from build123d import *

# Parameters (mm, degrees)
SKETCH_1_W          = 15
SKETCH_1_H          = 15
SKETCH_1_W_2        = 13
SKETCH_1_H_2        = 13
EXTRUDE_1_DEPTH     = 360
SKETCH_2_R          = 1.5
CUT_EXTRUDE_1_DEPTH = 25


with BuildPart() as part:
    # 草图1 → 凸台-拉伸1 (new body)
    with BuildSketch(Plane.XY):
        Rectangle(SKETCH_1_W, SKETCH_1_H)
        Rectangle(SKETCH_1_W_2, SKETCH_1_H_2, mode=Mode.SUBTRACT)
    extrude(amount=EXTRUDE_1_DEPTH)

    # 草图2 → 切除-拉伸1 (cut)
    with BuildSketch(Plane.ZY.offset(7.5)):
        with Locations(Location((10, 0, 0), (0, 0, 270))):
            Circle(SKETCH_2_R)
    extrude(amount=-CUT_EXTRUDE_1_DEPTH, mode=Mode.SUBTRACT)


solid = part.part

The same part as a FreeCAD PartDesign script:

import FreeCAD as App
import Part
import Sketcher

V = App.Vector

doc = App.newDocument("Part")
body = doc.addObject("PartDesign::Body", "Body")

sketch1 = doc.addObject("Sketcher::SketchObject", "Sketch")
body.addObject(sketch1)
sketch1.AttachmentSupport = (doc.XY_Plane, [""])
sketch1.MapMode = "FlatFace"
sketch1.addGeometry([
    Part.LineSegment(V(-8, 8, 0), V(-8, -8, 0)),
    Part.LineSegment(V(-8, -8, 0), V(8, -8, 0)),
    Part.LineSegment(V(8, -8, 0), V(8, 8, 0)),
    Part.LineSegment(V(8, 8, 0), V(-8, 8, 0)),
    Part.LineSegment(V(6, -6, 0), V(-6, -6, 0)),
    Part.LineSegment(V(-6, -6, 0), V(-6, 6, 0)),
    Part.LineSegment(V(-6, 6, 0), V(6, 6, 0)),
    Part.LineSegment(V(6, 6, 0), V(6, -6, 0)),
], False)
sketch1.addConstraint([
    Sketcher.Constraint("Coincident", 0, 2, 1, 1),
    Sketcher.Constraint("Coincident", 1, 2, 2, 1),
    Sketcher.Constraint("Coincident", 2, 2, 3, 1),
    Sketcher.Constraint("Coincident", 3, 2, 0, 1),
    Sketcher.Constraint("Coincident", 4, 2, 5, 1),
    Sketcher.Constraint("Coincident", 5, 2, 6, 1),
    Sketcher.Constraint("Coincident", 6, 2, 7, 1),
    Sketcher.Constraint("Coincident", 7, 2, 4, 1),
    Sketcher.Constraint("Vertical", 0),
    Sketcher.Constraint("Horizontal", 1),
    Sketcher.Constraint("Vertical", 2),
    Sketcher.Constraint("Horizontal", 3),
    Sketcher.Constraint("Horizontal", 4),
    Sketcher.Constraint("Vertical", 5),
    Sketcher.Constraint("Horizontal", 6),
    Sketcher.Constraint("Vertical", 7),
    Sketcher.Constraint("Symmetric", 0, 2, 2, 2, -1, 1),
    Sketcher.Constraint("Symmetric", 4, 2, 6, 2, -1, 1),
    Sketcher.Constraint("Equal", 3, 0),
    Sketcher.Constraint("Equal", 6, 5),
    Sketcher.Constraint("DistanceX", 1, 1, 1, 2, 15.0),
    Sketcher.Constraint("DistanceX", 4, 2, 4, 1, 13.0),
])
pad1 = doc.addObject("PartDesign::Pad", "Pad")
body.addObject(pad1)
pad1.Profile = sketch1
pad1.Length = 360

sketch2 = doc.addObject("Sketcher::SketchObject", "Sketch001")
body.addObject(sketch2)
sketch2.AttachmentSupport = (doc.YZ_Plane, [""])
sketch2.MapMode = "FlatFace"
sketch2.AttachmentOffset = App.Placement(V(0, 0, -7.5), App.Rotation())
sketch2.addGeometry(Part.Circle(V(0, 10, 0), V(0, 0, 1), 1.5), False)
sketch2.addConstraint([
    Sketcher.Constraint("PointOnObject", 0, 3, -2),
    Sketcher.Constraint("Diameter", 0, 3.0),
    Sketcher.Constraint("DistanceY", -1, 1, 0, 3, 10.0),
])
pocket1 = doc.addObject("PartDesign::Pocket", "Pocket")
body.addObject(pocket1)
pocket1.Profile = sketch2
pocket1.Length = 25
pocket1.Reversed = True

doc.recompute()
